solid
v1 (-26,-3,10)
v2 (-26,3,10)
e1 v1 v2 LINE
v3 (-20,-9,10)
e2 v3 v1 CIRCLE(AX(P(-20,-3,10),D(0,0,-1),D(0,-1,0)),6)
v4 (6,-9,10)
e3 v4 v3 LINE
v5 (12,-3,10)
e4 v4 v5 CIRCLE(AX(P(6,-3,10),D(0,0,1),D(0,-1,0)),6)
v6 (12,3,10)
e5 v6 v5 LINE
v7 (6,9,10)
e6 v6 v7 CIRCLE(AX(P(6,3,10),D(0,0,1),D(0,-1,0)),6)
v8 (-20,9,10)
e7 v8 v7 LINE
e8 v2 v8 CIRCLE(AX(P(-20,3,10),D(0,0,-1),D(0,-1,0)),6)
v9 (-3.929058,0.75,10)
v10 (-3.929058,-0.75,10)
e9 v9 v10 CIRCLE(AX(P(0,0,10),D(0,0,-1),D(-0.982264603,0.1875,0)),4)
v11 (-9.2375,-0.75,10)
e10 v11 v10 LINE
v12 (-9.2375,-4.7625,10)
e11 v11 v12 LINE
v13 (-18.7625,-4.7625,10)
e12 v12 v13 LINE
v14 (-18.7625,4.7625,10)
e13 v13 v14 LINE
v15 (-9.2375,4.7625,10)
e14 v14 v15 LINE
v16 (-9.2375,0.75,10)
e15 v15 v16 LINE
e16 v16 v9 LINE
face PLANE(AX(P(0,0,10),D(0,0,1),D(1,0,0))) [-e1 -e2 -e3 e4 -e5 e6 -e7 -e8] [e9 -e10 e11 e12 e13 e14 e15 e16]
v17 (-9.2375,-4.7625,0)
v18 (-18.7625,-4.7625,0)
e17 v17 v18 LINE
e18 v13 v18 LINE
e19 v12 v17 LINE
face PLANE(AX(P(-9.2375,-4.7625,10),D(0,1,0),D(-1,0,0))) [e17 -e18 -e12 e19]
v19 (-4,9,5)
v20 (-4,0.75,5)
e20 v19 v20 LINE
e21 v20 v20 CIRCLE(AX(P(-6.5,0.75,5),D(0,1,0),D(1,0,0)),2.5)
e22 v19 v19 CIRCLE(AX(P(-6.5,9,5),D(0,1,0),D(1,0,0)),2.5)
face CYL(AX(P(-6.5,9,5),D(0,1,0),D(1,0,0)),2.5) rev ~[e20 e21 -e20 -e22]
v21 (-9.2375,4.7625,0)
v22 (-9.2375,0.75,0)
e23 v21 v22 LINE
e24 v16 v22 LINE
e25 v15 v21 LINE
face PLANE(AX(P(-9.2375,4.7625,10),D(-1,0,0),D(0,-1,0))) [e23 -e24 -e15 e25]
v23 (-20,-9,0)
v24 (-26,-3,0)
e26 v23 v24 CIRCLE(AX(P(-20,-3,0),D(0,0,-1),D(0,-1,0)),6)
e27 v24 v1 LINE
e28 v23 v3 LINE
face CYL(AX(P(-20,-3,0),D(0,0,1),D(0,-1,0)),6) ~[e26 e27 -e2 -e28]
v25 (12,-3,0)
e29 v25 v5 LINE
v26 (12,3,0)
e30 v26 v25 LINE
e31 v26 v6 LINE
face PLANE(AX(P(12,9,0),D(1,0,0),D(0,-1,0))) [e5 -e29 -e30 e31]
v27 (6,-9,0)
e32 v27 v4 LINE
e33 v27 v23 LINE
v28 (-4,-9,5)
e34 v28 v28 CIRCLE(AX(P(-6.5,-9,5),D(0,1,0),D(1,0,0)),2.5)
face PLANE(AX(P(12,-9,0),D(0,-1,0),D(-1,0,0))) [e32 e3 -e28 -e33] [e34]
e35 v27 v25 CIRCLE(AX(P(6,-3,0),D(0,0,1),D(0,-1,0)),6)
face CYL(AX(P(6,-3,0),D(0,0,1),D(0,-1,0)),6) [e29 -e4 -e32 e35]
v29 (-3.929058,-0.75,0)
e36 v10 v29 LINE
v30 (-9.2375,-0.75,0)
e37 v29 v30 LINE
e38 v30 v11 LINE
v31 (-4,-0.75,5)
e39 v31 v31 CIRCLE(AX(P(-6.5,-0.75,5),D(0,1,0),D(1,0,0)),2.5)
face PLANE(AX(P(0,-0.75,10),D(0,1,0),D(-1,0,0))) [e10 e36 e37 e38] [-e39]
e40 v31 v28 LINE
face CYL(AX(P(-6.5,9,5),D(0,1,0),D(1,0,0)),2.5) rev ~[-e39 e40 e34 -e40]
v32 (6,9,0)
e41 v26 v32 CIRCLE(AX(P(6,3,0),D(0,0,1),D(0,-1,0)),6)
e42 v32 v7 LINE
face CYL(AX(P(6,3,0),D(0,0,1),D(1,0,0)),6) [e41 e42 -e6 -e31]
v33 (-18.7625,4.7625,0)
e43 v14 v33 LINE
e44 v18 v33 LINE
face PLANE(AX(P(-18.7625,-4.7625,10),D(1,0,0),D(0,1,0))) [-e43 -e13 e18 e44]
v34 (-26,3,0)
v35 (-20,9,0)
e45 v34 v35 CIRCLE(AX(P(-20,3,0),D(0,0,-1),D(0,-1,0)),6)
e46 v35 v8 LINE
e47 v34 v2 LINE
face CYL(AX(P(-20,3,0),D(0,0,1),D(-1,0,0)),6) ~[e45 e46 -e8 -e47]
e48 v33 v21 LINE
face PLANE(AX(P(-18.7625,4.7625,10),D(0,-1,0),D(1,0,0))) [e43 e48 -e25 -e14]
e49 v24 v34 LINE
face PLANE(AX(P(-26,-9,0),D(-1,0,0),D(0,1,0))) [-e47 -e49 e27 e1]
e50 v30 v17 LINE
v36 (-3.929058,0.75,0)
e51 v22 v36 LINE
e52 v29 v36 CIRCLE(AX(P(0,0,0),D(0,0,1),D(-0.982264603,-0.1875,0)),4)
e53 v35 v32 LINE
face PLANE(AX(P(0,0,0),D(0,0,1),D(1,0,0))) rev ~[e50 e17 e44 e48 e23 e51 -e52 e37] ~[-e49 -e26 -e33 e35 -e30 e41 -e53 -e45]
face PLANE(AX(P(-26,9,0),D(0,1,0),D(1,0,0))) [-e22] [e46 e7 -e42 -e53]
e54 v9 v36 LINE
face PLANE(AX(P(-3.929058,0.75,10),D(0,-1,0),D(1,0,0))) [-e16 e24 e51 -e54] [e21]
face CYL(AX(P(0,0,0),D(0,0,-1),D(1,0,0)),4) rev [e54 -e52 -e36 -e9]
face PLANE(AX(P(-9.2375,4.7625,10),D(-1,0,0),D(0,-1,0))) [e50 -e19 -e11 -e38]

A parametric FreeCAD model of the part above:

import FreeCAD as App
import Part
import Sketcher


def edges_at(feature, points):
    """Names of the edges that pass closest to the given points."""
    edges = feature.Shape.Edges
    near = lambda p: min(range(len(edges)), key=lambda i: edges[i].distToShape(Part.Vertex(*p))[0])
    return sorted({f"Edge{near(p) + 1}" for p in points})

doc = App.newDocument("Part")
body = doc.addObject("PartDesign::Body", "Body")

# Sketch on XY plane
sketch1 = body.newObject("Sketcher::SketchObject", "Sketch")
sketch1.AttachmentSupport = (doc.getObject("XY_Plane"), [""])
sketch1.MapMode = "FlatFace"
sketch1.addGeometry([
    Part.LineSegment(App.Vector(-26, -9, 0), App.Vector(12, -9, 0)),  # 0
    Part.LineSegment(App.Vector(12, -9, 0), App.Vector(12, 9, 0)),  # 1
    Part.LineSegment(App.Vector(12, 9, 0), App.Vector(-26, 9, 0)),  # 2
    Part.LineSegment(App.Vector(-26, 9, 0), App.Vector(-26, -9, 0)),  # 3
    Part.Circle(App.Vector(-14, 0, 0), App.Vector(0, 0, 1), 4),  # 4
    Part.Circle(App.Vector(0, 0, 0), App.Vector(0, 0, 1), 4),  # 5
], False)
sketch1.addConstraint([
    Sketcher.Constraint("Coincident", 0, 2, 1, 1),
    Sketcher.Constraint("Coincident", 1, 2, 2, 1),
    Sketcher.Constraint("Coincident", 2, 2, 3, 1),
    Sketcher.Constraint("Coincident", 3, 2, 0, 1),
    Sketcher.Constraint("Horizontal", 0),
    Sketcher.Constraint("Vertical", 1),
    Sketcher.Constraint("Horizontal", 2),
    Sketcher.Constraint("Vertical", 3),
    Sketcher.Constraint("Coincident", 5, 3, -1, 1),
    Sketcher.Constraint("Equal", 4, 5),
    Sketcher.Constraint("PointOnObject", 4, 3, -1),
    Sketcher.Constraint("Diameter", 4, 8.0),
    Sketcher.Constraint("DistanceX", 0, 1, 0, 2, 38.0),
    Sketcher.Constraint("DistanceY", 1, 1, 1, 2, 18.0),
    Sketcher.Constraint("DistanceX", 4, 3, -1, 1, 14.0),
    Sketcher.Constraint("DistanceX", -1, 1, 0, 2, 12.0),
    Sketcher.Constraint("DistanceY", 0, 2, -1, 1, 9.0),
])
pad1 = body.newObject("PartDesign::Pad", "Pad")
pad1.Profile = sketch1
pad1.Length = 10

# Sketch on XZ plane
sketch2 = body.newObject("Sketcher::SketchObject", "Sketch001")
sketch2.AttachmentSupport = (doc.getObject("XZ_Plane"), [""])
sketch2.MapMode = "FlatFace"
sketch2.AttachmentOffset = App.Placement(App.Vector(0, 0, -9), App.Rotation())
sketch2.addGeometry(Part.Circle(App.Vector(-6.5, 5, 0), App.Vector(0, 0, 1), 2.5), False)
sketch2.addConstraint([
    Sketcher.Constraint("Diameter", 0, 5.0),
    Sketcher.Constraint("DistanceY", -1, 1, 0, 3, 5.0),
    Sketcher.Constraint("DistanceX", 0, 3, -1, 1, 6.5),
])
pocket1 = body.newObject("PartDesign::Pocket", "Pocket")
pocket1.Profile = sketch2
pocket1.Type = "ThroughAll"
pocket1.Reversed = True
doc.recompute()

fillet = body.newObject("PartDesign::Fillet", "Fillet")
fillet.Base = (pocket1, edges_at(pocket1, [
    (12, 9, 5),
    (-26, 9, 5),
    (-26, -9, 5),
    (12, -9, 5),
]))
fillet.Radius = 6

# Sketch on XY plane
sketch3 = body.newObject("Sketcher::SketchObject", "Sketch002")
sketch3.AttachmentSupport = (doc.getObject("XY_Plane"), [""])
sketch3.MapMode = "FlatFace"
sketch3.AttachmentOffset = App.Placement(App.Vector(0, 0, 10), App.Rotation())
sketch3.addGeometry([
    Part.LineSegment(App.Vector(0, 0.8, 0), App.Vector(-14, 0.8, 0)),
    Part.LineSegment(App.Vector(-14, 0.8, 0), App.Vector(-14, -0.8, 0)),
    Part.LineSegment(App.Vector(-14, -0.8, 0), App.Vector(0, -0.8, 0)),
    Part.LineSegment(App.Vector(0, -0.8, 0), App.Vector(0, 0.8, 0)),
], False)
sketch3.addConstraint([
    Sketcher.Constraint("Coincident", 0, 2, 1, 1),
    Sketcher.Constraint("Coincident", 1, 2, 2, 1),
    Sketcher.Constraint("Coincident", 2, 2, 3, 1),
    Sketcher.Constraint("Coincident", 3, 2, 0, 1),
    Sketcher.Constraint("Horizontal", 0),
    Sketcher.Constraint("Vertical", 1),
    Sketcher.Constraint("Horizontal", 2),
    Sketcher.Constraint("Vertical", 3),
    Sketcher.Constraint("Symmetric", 2, 2, 3, 2, -1, 1),
    Sketcher.Constraint("DistanceY", 1, 2, 1, 1, 1.5),
    Sketcher.Constraint("DistanceX", 0, 2, 0, 1, 14.0),
])
pocket2 = body.newObject("PartDesign::Pocket", "Pocket001")
pocket2.Profile = sketch3
pocket2.Type = "ThroughAll"

# Sketch on XY plane
sketch4 = body.newObject("Sketcher::SketchObject", "Sketch003")
sketch4.AttachmentSupport = (doc.getObject("XY_Plane"), [""])
sketch4.MapMode = "FlatFace"
sketch4.AttachmentOffset = App.Placement(App.Vector(0, 0, 10), App.Rotation())
sketch4.addGeometry([
    Part.LineSegment(App.Vector(-19, -5, 0), App.Vector(-9, -5, 0)),
    Part.LineSegment(App.Vector(-9, -5, 0), App.Vector(-9, 5, 0)),
    Part.LineSegment(App.Vector(-9, 5, 0), App.Vector(-19, 5, 0)),
    Part.LineSegment(App.Vector(-19, 5, 0), App.Vector(-19, -5, 0)),
], False)
sketch4.addConstraint([
    Sketcher.Constraint("Coincident", 0, 2, 1, 1),
    Sketcher.Constraint("Coincident", 1, 2, 2, 1),
    Sketcher.Constraint("Coincident", 2, 2, 3, 1),
    Sketcher.Constraint("Coincident", 3, 2, 0, 1),
    Sketcher.Constraint("Horizontal", 0),
    Sketcher.Constraint("Vertical", 1),
    Sketcher.Constraint("Horizontal", 2),
    Sketcher.Constraint("Vertical", 3),
    Sketcher.Constraint("Equal", 2, 1),
    Sketcher.Constraint("DistanceX", 0, 1, 0, 2, 9.525),
    Sketcher.Constraint("DistanceX", 0, 2, -1, 1, 9.2375),
    Sketcher.Constraint("DistanceY", 0, 2, -1, 1, 4.7625),
])
pocket3 = body.newObject("PartDesign::Pocket", "Pocket002")
pocket3.Profile = sketch4
pocket3.Type = "ThroughAll"

doc.recompute()
